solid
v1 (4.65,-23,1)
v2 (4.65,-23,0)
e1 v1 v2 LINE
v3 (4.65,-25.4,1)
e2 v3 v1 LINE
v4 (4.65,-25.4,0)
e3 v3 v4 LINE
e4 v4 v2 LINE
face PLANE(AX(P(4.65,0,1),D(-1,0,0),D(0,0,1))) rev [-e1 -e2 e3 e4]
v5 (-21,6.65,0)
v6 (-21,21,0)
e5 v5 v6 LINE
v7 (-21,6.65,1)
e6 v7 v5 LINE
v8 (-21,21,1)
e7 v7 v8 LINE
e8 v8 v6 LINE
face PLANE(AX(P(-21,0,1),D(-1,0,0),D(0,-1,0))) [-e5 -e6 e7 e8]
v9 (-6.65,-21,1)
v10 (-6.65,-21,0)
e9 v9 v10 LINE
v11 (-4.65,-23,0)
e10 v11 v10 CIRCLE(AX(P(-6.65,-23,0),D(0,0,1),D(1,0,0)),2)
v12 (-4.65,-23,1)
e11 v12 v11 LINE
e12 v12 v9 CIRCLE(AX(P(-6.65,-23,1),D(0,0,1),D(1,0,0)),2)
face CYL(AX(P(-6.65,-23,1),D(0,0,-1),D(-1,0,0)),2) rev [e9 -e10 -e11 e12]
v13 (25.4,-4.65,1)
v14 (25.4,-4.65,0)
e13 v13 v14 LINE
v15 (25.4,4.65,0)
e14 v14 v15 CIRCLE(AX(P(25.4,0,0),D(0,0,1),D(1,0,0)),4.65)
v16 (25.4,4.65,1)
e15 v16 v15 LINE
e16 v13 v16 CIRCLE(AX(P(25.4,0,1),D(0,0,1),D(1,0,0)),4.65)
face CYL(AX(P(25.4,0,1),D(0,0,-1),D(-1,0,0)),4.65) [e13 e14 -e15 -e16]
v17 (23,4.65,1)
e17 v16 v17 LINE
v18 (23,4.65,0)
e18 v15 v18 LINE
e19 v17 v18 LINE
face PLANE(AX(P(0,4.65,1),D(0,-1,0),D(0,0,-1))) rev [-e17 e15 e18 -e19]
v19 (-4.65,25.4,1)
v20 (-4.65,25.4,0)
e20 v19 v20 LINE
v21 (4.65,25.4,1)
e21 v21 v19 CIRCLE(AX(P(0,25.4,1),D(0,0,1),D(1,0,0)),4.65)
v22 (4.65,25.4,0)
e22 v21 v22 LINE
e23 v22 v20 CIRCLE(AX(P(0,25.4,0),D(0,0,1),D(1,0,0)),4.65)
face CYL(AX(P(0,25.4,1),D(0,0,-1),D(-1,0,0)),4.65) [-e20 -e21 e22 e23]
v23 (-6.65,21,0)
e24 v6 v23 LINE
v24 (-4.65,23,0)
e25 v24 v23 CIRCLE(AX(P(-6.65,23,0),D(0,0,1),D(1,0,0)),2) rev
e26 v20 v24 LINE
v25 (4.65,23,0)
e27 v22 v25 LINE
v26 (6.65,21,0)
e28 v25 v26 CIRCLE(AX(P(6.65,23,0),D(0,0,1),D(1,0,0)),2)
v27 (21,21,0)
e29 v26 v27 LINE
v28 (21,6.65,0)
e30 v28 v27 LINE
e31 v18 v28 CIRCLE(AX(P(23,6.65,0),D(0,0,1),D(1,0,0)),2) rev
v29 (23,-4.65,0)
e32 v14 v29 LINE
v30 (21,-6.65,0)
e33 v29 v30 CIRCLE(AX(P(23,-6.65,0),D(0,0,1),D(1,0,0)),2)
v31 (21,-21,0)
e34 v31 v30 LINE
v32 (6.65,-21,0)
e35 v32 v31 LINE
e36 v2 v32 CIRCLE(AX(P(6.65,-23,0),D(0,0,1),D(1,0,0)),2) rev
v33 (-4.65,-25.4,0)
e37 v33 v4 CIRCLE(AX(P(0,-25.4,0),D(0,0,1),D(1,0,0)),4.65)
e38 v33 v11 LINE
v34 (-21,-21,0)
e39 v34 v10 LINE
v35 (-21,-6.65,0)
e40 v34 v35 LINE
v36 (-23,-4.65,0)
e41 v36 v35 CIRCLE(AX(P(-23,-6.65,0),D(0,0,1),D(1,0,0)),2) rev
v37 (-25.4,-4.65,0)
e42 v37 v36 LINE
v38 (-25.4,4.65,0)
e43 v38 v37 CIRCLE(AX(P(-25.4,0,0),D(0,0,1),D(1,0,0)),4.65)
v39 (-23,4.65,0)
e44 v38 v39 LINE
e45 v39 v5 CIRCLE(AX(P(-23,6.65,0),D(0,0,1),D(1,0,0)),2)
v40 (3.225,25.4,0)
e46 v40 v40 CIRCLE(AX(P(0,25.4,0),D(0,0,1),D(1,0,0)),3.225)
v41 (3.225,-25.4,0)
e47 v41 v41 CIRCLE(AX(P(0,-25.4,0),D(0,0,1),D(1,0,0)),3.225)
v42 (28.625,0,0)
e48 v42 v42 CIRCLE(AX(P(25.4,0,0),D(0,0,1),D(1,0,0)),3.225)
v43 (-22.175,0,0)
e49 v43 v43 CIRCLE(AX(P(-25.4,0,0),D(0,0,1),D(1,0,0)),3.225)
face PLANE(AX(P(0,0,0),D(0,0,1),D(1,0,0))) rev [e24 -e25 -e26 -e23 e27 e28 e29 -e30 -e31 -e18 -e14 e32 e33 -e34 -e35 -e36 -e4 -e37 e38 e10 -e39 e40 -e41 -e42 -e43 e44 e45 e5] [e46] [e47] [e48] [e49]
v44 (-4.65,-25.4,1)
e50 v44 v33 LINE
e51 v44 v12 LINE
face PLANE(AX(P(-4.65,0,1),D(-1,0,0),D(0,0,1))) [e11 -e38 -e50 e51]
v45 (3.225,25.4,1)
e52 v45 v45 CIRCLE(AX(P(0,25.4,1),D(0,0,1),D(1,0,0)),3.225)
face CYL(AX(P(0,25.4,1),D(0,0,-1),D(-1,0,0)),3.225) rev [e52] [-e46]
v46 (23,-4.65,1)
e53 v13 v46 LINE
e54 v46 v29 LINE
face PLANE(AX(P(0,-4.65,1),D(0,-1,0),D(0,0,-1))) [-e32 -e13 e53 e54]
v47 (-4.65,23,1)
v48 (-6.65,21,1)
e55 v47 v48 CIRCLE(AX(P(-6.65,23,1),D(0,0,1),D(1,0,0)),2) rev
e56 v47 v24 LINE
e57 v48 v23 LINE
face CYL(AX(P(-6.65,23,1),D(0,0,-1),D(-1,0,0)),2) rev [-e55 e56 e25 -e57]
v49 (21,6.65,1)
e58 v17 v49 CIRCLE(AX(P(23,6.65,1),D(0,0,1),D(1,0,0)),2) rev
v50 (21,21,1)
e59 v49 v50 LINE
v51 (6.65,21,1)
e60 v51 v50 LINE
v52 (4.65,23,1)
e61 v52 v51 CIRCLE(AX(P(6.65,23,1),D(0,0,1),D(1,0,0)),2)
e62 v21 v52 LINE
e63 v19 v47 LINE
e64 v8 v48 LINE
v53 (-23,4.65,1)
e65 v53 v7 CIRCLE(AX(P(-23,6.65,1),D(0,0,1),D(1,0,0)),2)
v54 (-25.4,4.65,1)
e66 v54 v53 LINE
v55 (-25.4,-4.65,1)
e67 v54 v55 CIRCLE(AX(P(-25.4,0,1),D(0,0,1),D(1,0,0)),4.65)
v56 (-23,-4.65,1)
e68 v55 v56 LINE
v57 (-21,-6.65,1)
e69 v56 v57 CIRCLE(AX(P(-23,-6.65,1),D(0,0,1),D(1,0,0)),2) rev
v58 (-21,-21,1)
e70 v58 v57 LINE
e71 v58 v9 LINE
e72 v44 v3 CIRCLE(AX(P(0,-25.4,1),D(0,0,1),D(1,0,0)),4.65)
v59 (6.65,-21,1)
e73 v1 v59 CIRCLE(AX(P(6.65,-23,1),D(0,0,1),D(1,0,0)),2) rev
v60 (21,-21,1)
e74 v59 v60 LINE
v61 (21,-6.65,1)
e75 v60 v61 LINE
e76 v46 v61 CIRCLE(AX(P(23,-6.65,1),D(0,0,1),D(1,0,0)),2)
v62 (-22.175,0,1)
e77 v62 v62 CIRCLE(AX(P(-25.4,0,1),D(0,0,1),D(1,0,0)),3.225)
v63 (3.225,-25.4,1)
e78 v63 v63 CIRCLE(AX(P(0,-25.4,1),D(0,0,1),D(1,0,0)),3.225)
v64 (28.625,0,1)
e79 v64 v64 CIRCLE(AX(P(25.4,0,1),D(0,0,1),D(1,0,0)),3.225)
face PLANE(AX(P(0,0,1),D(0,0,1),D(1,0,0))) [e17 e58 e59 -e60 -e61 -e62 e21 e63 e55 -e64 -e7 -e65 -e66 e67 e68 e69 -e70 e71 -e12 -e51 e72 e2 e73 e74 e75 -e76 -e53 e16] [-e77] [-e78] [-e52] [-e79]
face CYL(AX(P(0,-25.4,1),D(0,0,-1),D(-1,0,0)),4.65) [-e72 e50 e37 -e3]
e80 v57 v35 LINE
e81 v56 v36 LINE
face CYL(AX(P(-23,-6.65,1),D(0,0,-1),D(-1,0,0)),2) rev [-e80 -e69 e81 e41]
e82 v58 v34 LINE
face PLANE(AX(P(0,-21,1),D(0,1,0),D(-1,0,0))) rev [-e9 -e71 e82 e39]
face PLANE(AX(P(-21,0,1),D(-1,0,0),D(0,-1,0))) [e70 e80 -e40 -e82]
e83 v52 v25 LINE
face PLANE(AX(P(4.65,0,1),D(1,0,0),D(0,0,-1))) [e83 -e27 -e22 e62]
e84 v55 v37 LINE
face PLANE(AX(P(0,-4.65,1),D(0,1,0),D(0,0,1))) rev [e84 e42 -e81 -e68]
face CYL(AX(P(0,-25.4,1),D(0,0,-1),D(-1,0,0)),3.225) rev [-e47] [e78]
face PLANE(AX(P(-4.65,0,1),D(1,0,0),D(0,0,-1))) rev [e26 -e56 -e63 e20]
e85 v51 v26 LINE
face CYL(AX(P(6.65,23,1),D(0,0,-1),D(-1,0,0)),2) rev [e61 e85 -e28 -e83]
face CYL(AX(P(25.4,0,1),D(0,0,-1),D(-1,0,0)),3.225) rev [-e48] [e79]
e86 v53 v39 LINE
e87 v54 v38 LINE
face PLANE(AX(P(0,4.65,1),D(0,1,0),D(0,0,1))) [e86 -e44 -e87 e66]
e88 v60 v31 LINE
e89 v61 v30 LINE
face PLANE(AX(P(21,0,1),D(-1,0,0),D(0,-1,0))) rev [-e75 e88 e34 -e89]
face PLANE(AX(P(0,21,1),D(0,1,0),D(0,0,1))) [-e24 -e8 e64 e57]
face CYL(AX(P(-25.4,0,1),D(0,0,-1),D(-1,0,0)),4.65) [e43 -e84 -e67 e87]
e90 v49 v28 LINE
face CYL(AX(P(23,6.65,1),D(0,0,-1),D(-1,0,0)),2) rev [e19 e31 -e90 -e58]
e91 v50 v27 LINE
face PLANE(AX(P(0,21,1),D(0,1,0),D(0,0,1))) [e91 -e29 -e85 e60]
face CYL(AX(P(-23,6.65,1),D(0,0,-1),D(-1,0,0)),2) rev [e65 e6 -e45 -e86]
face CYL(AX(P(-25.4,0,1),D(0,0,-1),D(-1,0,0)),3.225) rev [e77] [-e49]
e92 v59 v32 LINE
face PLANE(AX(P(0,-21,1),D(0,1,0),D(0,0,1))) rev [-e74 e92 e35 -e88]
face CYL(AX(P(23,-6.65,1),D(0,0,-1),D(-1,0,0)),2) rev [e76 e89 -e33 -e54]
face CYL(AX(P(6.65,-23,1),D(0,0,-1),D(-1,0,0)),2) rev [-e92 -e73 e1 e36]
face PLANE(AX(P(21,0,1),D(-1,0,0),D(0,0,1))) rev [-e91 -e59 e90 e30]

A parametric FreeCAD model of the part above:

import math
import FreeCAD as App
import Part
import Sketcher

V = App.Vector

doc = App.newDocument("Part")
params = doc.addObject("Spreadsheet::Sheet", "Params")
for row, (alias, value) in enumerate([
    ("sketch1_radius", "2 mm"),
    ("sketch1_diameter", "6.45 mm"),
    ("sketch1_radius2", "4.65 mm"),
    ("sketch1_width", "2.4 mm"),
    ("pad1_length", "1 mm"),
], start=1):
    params.set(f"A{row}", alias)
    params.set(f"B{row}", "=" + value)
    params.setAlias(f"B{row}", alias)

body = doc.addObject("PartDesign::Body", "Body")

sketch1 = body.newObject("Sketcher::SketchObject", "Sketch")
sketch1.AttachmentSupport = (doc.getObject("XY_Plane"), [""])
sketch1.MapMode = "FlatFace"
sketch1.addGeometry([
    Part.ArcOfCircle(Part.Circle(V(0, 25.4, 0), V(0, 0, 1), 4.65), math.radians(0), math.radians(180)),
    Part.LineSegment(V(-4.65, 25.4, 0), V(-4.65, 23, 0)),
    Part.ArcOfCircle(Part.Circle(V(-6.65, 23, 0), V(0, 0, 1), 2), math.radians(-90), math.radians(0)),
    Part.LineSegment(V(-6.65, 21, 0), V(-21, 21, 0)),
    Part.LineSegment(V(-21, 21, 0), V(-21, 6.65, 0)),
    Part.ArcOfCircle(Part.Circle(V(-23, 6.65, 0), V(0, 0, 1), 2), math.radians(-90), math.radians(0)),
    Part.LineSegment(V(-23, 4.65, 0), V(-25.4, 4.65, 0)),
    Part.ArcOfCircle(Part.Circle(V(-25.4, 0, 0), V(0, 0, 1), 4.65), math.radians(90), math.radians(270)),
    Part.LineSegment(V(-25.4, -4.65, 0), V(-23, -4.65, 0)),
    Part.ArcOfCircle(Part.Circle(V(-23, -6.65, 0), V(0, 0, 1), 2), math.radians(0), math.radians(90)),
    Part.LineSegment(V(-21, -6.65, 0), V(-21, -21, 0)),
    Part.LineSegment(V(-21, -21, 0), V(-6.65, -21, 0)),
    Part.ArcOfCircle(Part.Circle(V(-6.65, -23, 0), V(0, 0, 1), 2), math.radians(0), math.radians(90)),
    Part.LineSegment(V(-4.65, -23, 0), V(-4.65, -25.4, 0)),
    Part.ArcOfCircle(Part.Circle(V(0, -25.4, 0), V(0, 0, 1), 4.65), math.radians(180), math.radians(360)),
    Part.LineSegment(V(4.65, -25.4, 0), V(4.65, -23, 0)),
    Part.ArcOfCircle(Part.Circle(V(6.65, -23, 0), V(0, 0, 1), 2), math.radians(90), math.radians(180)),
    Part.LineSegment(V(6.65, -21, 0), V(21, -21, 0)),
    Part.LineSegment(V(21, -21, 0), V(21, -6.65, 0)),
    Part.ArcOfCircle(Part.Circle(V(23, -6.65, 0), V(0, 0, 1), 2), math.radians(90), math.radians(180)),
    Part.LineSegment(V(23, -4.65, 0), V(25.4, -4.65, 0)),
    Part.ArcOfCircle(Part.Circle(V(25.4, 0, 0), V(0, 0, 1), 4.65), math.radians(-90), math.radians(90)),
    Part.LineSegment(V(25.4, 4.65, 0), V(23, 4.65, 0)),
    Part.ArcOfCircle(Part.Circle(V(23, 6.65, 0), V(0, 0, 1), 2), math.radians(-180), math.radians(-90)),
    Part.LineSegment(V(21, 6.65, 0), V(21, 21, 0)),
    Part.LineSegment(V(21, 21, 0), V(6.65, 21, 0)),
    Part.ArcOfCircle(Part.Circle(V(6.65, 23, 0), V(0, 0, 1), 2), math.radians(-180), math.radians(-90)),
    Part.LineSegment(V(4.65, 23, 0), V(4.65, 25.4, 0)),
    Part.Circle(V(0, -25.4, 0), V(0, 0, 1), 3.225),
    Part.Circle(V(-25.4, 0, 0), V(0, 0, 1), 3.225),
    Part.Circle(V(25.4, 0, 0), V(0, 0, 1), 3.225),
    Part.Circle(V(0, 25.4, 0), V(0, 0, 1), 3.225),
], False)
sketch1.addConstraint([
    Sketcher.Constraint("Tangent", 0, 2, 1, 1),
    Sketcher.Constraint("Tangent", 1, 2, 2, 2),
    Sketcher.Constraint("Tangent", 2, 1, 3, 1),
    Sketcher.Constraint("Coincident", 3, 2, 4, 1),
    Sketcher.Constraint("Tangent", 4, 2, 5, 2),
    Sketcher.Constraint("Tangent", 5, 1, 6, 1),
    Sketcher.Constraint("Tangent", 6, 2, 7, 1),
    Sketcher.Constraint("Tangent", 7, 2, 8, 1),
    Sketcher.Constraint("Tangent", 8, 2, 9, 2),
    Sketcher.Constraint("Tangent", 9, 1, 10, 1),
    Sketcher.Constraint("Coincident", 10, 2, 11, 1),
    Sketcher.Constraint("Tangent", 11, 2, 12, 2),
    Sketcher.Constraint("Tangent", 12, 1, 13, 1),
    Sketcher.Constraint("Tangent", 13, 2, 14, 1),
    Sketcher.Constraint("Tangent", 14, 2, 15, 1),
    Sketcher.Constraint("Tangent", 15, 2, 16, 2),
    Sketcher.Constraint("Tangent", 16, 1, 17, 1),
    Sketcher.Constraint("Coincident", 17, 2, 18, 1),
    Sketcher.Constraint("Tangent", 18, 2, 19, 2),
    Sketcher.Constraint("Tangent", 19, 1, 20, 1),
    Sketcher.Constraint("Tangent", 20, 2, 21, 1),
    Sketcher.Constraint("Tangent", 21, 2, 22, 1),
    Sketcher.Constraint("Tangent", 22, 2, 23, 2),
    Sketcher.Constraint("Tangent", 23, 1, 24, 1),
    Sketcher.Constraint("Coincident", 24, 2, 25, 1),
    Sketcher.Constraint("Tangent", 25, 2, 26, 2),
    Sketcher.Constraint("Tangent", 26, 1, 27, 1),
    Sketcher.Constraint("Tangent", 27, 2, 0, 1),
    Sketcher.Constraint("Vertical", 1),
    Sketcher.Constraint("Horizontal", 3),
    Sketcher.Constraint("Vertical", 4),
    Sketcher.Constraint("Horizontal", 6),
    Sketcher.Constraint("Horizontal", 8),
    Sketcher.Constraint("Vertical", 10),
    Sketcher.Constraint("Horizontal", 11),
    Sketcher.Constraint("Vertical", 13),
    Sketcher.Constraint("Vertical", 15),
    Sketcher.Constraint("Horizontal", 17),
    Sketcher.Constraint("Vertical", 18),
    Sketcher.Constraint("Horizontal", 20),
    Sketcher.Constraint("Horizontal", 22),
    Sketcher.Constraint("Vertical", 24),
    Sketcher.Constraint("Horizontal", 25),
    Sketcher.Constraint("Vertical", 27),
    Sketcher.Constraint("Coincident", 28, 3, 14, 3),
    Sketcher.Constraint("Coincident", 29, 3, 7, 3),
    Sketcher.Constraint("Coincident", 30, 3, 21, 3),
    Sketcher.Constraint("Coincident", 31, 3, 0, 3),
    Sketcher.Constraint("Equal", 2, 5),
    Sketcher.Constraint("Equal", 0, 7),
    Sketcher.Constraint("Equal", 5, 9),
    Sketcher.Constraint("Equal", 9, 12),
    Sketcher.Constraint("Equal", 7, 14),
    Sketcher.Constraint("Equal", 12, 16),
    Sketcher.Constraint("Equal", 16, 19),
    Sketcher.Constraint("Equal", 14, 21),
    Sketcher.Constraint("Equal", 19, 23),
    Sketcher.Constraint("Equal", 23, 26),
    Sketcher.Constraint("Equal", 28, 29),
    Sketcher.Constraint("Equal", 29, 30),
    Sketcher.Constraint("Equal", 30, 31),
    Sketcher.Constraint("Symmetric", 0, 3, 14, 3, -1, 1),
    Sketcher.Constraint("Symmetric", 5, 3, 19, 3, -1, 1),
    Sketcher.Constraint("Symmetric", 10, 2, 24, 2, -1, 1),
    Sketcher.Constraint("Symmetric", 12, 3, 16, 3, -2),
    Sketcher.Constraint("Symmetric", 9, 3, 19, 3, -2),
    Sketcher.Constraint("Horizontal", 2, 3, 26, 3),
    Sketcher.Constraint("Equal", 8, 20),
    Sketcher.Constraint("Equal", 22, 1),
    Sketcher.Constraint("Equal", 25, 4),
    Sketcher.Constraint("Radius", 2, 2.0),
    Sketcher.Constraint("Diameter", 28, 6.45),
    Sketcher.Constraint("Radius", 0, 4.65),
    Sketcher.Constraint("DistanceX", 6, 2, 6, 1, 2.4),
    Sketcher.Constraint("DistanceY", -1, 1, 2, 3, 23.0),
])
sketch1.setExpression("Constraints[70]", "Params.sketch1_radius")
sketch1.setExpression("Constraints[71]", "Params.sketch1_diameter")
sketch1.setExpression("Constraints[72]", "Params.sketch1_radius2")
sketch1.setExpression("Constraints[73]", "Params.sketch1_width")
pad1 = body.newObject("PartDesign::Pad", "Pad")
pad1.Profile = sketch1
pad1.setExpression("Length", "Params.pad1_length")

doc.recompute()
